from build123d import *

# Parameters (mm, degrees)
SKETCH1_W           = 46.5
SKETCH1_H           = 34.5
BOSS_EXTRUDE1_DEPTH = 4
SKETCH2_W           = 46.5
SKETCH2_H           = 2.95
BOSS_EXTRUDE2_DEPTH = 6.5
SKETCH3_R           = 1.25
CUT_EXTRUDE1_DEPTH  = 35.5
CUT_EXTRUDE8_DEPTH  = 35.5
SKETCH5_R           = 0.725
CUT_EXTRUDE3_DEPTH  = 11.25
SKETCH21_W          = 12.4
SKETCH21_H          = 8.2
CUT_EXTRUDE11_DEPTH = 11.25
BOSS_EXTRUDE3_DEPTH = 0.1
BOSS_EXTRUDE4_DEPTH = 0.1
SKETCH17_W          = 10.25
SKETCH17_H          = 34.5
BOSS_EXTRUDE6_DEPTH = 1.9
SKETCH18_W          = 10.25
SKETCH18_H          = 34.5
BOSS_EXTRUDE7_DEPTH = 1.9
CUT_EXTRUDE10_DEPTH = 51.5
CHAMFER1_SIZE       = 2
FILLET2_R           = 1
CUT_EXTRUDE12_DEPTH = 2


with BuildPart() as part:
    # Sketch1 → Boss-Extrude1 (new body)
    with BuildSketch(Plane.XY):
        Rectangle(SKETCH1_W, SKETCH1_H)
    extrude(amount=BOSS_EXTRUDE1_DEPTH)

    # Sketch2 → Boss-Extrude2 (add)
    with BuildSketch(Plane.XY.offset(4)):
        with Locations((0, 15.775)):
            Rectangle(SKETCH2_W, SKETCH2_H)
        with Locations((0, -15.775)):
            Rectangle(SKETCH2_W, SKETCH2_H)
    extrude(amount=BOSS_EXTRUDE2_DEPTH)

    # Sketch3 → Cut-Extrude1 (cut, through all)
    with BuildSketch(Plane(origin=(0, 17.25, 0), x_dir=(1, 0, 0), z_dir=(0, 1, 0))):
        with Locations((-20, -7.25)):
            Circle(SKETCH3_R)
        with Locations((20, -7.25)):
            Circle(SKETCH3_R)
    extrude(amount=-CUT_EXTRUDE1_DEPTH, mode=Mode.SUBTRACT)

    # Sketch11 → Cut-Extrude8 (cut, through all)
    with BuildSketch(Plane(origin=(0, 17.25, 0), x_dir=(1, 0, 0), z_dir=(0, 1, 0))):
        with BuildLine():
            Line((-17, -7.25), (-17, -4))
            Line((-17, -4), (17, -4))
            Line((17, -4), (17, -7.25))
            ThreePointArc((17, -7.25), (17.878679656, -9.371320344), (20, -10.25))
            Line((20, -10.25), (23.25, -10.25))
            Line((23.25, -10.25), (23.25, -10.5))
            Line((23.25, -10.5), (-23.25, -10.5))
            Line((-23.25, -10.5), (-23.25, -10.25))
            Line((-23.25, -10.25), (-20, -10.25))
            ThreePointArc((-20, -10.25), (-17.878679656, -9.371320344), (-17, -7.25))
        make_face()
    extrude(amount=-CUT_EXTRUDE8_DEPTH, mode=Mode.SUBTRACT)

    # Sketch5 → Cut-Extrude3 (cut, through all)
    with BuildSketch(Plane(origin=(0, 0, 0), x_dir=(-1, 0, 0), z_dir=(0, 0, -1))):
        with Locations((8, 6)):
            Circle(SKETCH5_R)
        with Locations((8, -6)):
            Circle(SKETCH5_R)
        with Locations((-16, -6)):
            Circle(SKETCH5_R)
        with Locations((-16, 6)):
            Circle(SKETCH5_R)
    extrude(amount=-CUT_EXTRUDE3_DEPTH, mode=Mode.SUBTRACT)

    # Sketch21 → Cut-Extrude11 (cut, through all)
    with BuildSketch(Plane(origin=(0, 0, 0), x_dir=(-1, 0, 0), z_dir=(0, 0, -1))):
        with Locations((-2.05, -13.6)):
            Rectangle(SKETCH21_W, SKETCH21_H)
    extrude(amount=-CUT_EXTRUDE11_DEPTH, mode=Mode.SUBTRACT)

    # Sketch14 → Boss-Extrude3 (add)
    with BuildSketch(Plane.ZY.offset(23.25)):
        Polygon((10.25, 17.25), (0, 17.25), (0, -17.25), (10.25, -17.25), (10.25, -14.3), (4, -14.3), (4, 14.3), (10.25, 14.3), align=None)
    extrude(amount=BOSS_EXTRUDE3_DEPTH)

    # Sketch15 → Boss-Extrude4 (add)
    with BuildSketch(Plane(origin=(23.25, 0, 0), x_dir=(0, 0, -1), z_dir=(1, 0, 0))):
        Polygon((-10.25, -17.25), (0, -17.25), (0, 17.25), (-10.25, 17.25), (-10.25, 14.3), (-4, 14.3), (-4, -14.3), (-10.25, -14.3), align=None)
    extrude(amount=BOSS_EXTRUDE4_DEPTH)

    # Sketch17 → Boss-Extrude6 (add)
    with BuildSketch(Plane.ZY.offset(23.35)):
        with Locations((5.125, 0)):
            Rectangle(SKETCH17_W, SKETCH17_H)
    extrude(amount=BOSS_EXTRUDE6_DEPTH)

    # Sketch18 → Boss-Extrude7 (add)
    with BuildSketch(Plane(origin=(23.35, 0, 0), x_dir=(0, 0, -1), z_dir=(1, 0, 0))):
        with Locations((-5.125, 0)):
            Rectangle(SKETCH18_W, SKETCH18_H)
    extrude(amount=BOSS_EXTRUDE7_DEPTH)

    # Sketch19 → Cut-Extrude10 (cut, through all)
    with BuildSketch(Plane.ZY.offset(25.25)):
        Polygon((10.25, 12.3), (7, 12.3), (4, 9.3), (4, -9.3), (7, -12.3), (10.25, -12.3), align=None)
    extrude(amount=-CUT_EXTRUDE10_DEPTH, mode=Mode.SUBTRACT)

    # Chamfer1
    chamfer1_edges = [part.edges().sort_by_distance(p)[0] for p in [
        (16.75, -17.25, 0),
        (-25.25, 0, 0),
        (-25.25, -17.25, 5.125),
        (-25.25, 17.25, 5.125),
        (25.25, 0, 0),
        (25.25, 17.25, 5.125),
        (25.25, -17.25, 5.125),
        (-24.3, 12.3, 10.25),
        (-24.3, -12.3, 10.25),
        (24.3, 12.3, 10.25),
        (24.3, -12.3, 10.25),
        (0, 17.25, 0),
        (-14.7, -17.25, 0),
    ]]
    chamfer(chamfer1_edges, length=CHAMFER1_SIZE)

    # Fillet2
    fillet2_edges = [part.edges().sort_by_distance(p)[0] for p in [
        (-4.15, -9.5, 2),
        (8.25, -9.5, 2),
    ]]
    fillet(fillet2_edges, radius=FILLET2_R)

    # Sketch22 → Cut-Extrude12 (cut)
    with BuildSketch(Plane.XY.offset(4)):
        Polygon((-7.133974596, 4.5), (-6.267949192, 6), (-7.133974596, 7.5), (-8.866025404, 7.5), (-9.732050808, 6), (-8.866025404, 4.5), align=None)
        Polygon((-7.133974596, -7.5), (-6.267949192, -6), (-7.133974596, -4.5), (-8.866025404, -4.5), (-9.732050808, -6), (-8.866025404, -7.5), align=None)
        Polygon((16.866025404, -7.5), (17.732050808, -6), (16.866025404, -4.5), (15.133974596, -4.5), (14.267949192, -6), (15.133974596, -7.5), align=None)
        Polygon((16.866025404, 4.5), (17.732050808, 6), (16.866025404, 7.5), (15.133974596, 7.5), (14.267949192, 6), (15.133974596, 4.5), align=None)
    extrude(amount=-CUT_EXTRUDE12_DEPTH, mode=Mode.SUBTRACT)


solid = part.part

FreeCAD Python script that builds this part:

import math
import FreeCAD as App
import Part
import Sketcher
Q = App.Units.Quantity


def edges_at(feature, points):
    """Names of the edges that pass closest to the given points."""
    edges = feature.Shape.Edges
    near = lambda p: min(range(len(edges)), key=lambda i: edges[i].distToShape(Part.Vertex(*p))[0])
    return sorted({f"Edge{near(p) + 1}" for p in points})


def add_polygon(sketch, points):
    """Adds a closed chain of lines whose ends are joined by coincident constraints."""
    first, n = sketch.GeometryCount, len(points)
    for a, b in zip(points, points[1:] + points[:1]):
        sketch.addGeometry(Part.LineSegment(App.Vector(*a, 0), App.Vector(*b, 0)), False)
    for i in range(n):
        sketch.addConstraint(Sketcher.Constraint("Coincident", first + i, 2, first + (i + 1) % n, 1))

doc = App.newDocument("Part")
body = doc.addObject("PartDesign::Body", "Body")

sketch1 = body.newObject("Sketcher::SketchObject", "Sketch")
sketch1.AttachmentSupport = (doc.getObject("XY_Plane"), [""])
sketch1.MapMode = "FlatFace"
add_polygon(sketch1, [(-23.25, 17.25), (-23.25, -17.25), (23.25, -17.25), (23.25, 17.25)])
sketch1.addConstraint([
    Sketcher.Constraint("Vertical", 0),
    Sketcher.Constraint("Horizontal", 1),
    Sketcher.Constraint("Vertical", 2),
    Sketcher.Constraint("Horizontal", 3),
    Sketcher.Constraint("Symmetric", 0, 2, 2, 2, -1, 1),
    Sketcher.Constraint("DistanceX", 1, 1, 1, 2, 46.5),
    Sketcher.Constraint("DistanceY", 0, 2, 0, 1, 34.5),
])
pad1 = body.newObject("PartDesign::Pad", "Pad")
pad1.Profile = sketch1
pad1.Length = 4

sketch2 = body.newObject("Sketcher::SketchObject", "Sketch001")
sketch2.AttachmentSupport = (doc.getObject("XY_Plane"), [""])
sketch2.MapMode = "FlatFace"
sketch2.AttachmentOffset = App.Placement(App.Vector(0, 0, 4), App.Rotation())
add_polygon(sketch2, [(-23.25, 17.25), (-23.25, 14.3), (23.25, 14.3), (23.25, 17.25)])
add_polygon(sketch2, [(-23.25, -14.3), (-23.25, -17.25), (23.25, -17.25), (23.25, -14.3)])
sketch2.addConstraint([
    Sketcher.Constraint("Vertical", 0),
    Sketcher.Constraint("Horizontal", 1),
    Sketcher.Constraint("Vertical", 2),
    Sketcher.Constraint("Horizontal", 3),
    Sketcher.Constraint("Vertical", 4),
    Sketcher.Constraint("Horizontal", 5),
    Sketcher.Constraint("Vertical", 6),
    Sketcher.Constraint("Horizontal", 7),
    Sketcher.Constraint("Symmetric", 2, 2, 4, 2, -1, 1),
    Sketcher.Constraint("Symmetric", 0, 2, 6, 2, -1, 1),
    Sketcher.Constraint("Vertical", 3, 2, 4, 2),
    Sketcher.Constraint("DistanceX", 1, 1, 1, 2, 46.5),
    Sketcher.Constraint("DistanceY", 0, 2, 0, 1, 2.95),
    Sketcher.Constraint("DistanceY", -1, 1, 0, 2, 14.3),
])
pad2 = body.newObject("PartDesign::Pad", "Pad001")
pad2.Profile = sketch2
pad2.Length = 6.5

sketch3 = body.newObject("Sketcher::SketchObject", "Sketch002")
sketch3.AttachmentSupport = (doc.getObject("XZ_Plane"), [""])
sketch3.MapMode = "FlatFace"
sketch3.AttachmentOffset = App.Placement(App.Vector(0, 0, -17.25), App.Rotation())
sketch3.addGeometry([
    Part.Circle(App.Vector(-20, 7.25, 0), App.Vector(0, 0, 1), 1.25),
    Part.Circle(App.Vector(20, 7.25, 0), App.Vector(0, 0, 1), 1.25),
], False)
sketch3.addConstraint([
    Sketcher.Constraint("Equal", 0, 1),
    Sketcher.Constraint("Symmetric", 0, 3, 1, 3, -2),
    Sketcher.Constraint("Diameter", 0, 2.5),
    Sketcher.Constraint("DistanceX", 0, 3, -1, 1, 20.0),
    Sketcher.Constraint("DistanceY", -1, 1, 0, 3, 7.25),
])
pocket1 = body.newObject("PartDesign::Pocket", "Pocket")
pocket1.Profile = sketch3
pocket1.Type = "ThroughAll"
pocket1.Reversed = True

sketch4 = body.newObject("Sketcher::SketchObject", "Sketch003")
sketch4.AttachmentSupport = (doc.getObject("XZ_Plane"), [""])
sketch4.MapMode = "FlatFace"
sketch4.AttachmentOffset = App.Placement(App.Vector(0, 0, -17.25), App.Rotation())
sketch4.addGeometry([
    Part.LineSegment(App.Vector(-17, 4, 0), App.Vector(-17, 7.25, 0)),
    Part.ArcOfCircle(Part.Circle(App.Vector(-20, 7.25, 0), App.Vector(0, 0, 1), 3), math.radians(0), math.radians(90)),
    Part.LineSegment(App.Vector(-20, 10.25, 0), App.Vector(-23.25, 10.25, 0)),
    Part.LineSegment(App.Vector(-23.25, 10.25, 0), App.Vector(-23.25, 10.5, 0)),
    Part.LineSegment(App.Vector(-23.25, 10.5, 0), App.Vector(23.25, 10.5, 0)),
    Part.LineSegment(App.Vector(23.25, 10.5, 0), App.Vector(23.25, 10.25, 0)),
    Part.LineSegment(App.Vector(23.25, 10.25, 0), App.Vector(20, 10.25, 0)),
    Part.ArcOfCircle(Part.Circle(App.Vector(20, 7.25, 0), App.Vector(0, 0, 1), 3), math.radians(90), math.radians(180)),
    Part.LineSegment(App.Vector(17, 7.25, 0), App.Vector(17, 4, 0)),
    Part.LineSegment(App.Vector(17, 4, 0), App.Vector(-17, 4, 0)),
], False)
sketch4.addConstraint([
    Sketcher.Constraint("Tangent", 0, 2, 1, 1),
    Sketcher.Constraint("Tangent", 1, 2, 2, 1),
    Sketcher.Constraint("Coincident", 2, 2, 3, 1),
    Sketcher.Constraint("Coincident", 3, 2, 4, 1),
    Sketcher.Constraint("Coincident", 4, 2, 5, 1),
    Sketcher.Constraint("Coincident", 5, 2, 6, 1),
    Sketcher.Constraint("Tangent", 6, 2, 7, 1),
    Sketcher.Constraint("Tangent", 7, 2, 8, 1),
    Sketcher.Constraint("Coincident", 8, 2, 9, 1),
    Sketcher.Constraint("Coincident", 9, 2, 0, 1),
    Sketcher.Constraint("Vertical", 0),
    Sketcher.Constraint("Horizontal", 2),
    Sketcher.Constraint("Vertical", 3),
    Sketcher.Constraint("Horizontal", 4),
    Sketcher.Constraint("Vertical", 5),
    Sketcher.Constraint("Horizontal", 6),
    Sketcher.Constraint("Vertical", 8),
    Sketcher.Constraint("Horizontal", 9),
    Sketcher.Constraint("Equal", 1, 7),
    Sketcher.Constraint("Symmetric", 1, 3, 7, 3, -2),
    Sketcher.Constraint("Equal", 2, 6),
    Sketcher.Constraint("Equal", 6, 0),
    Sketcher.Constraint("Radius", 1, 3.0),
    Sketcher.Constraint("DistanceX", 9, 2, 9, 1, 34.0),
    Sketcher.Constraint("DistanceX", 4, 1, 4, 2, 46.5),
    Sketcher.Constraint("DistanceY", -1, 1, 8, 2, 4.0),
    Sketcher.Constraint("DistanceY", 3, 1, 3, 2, 0.25),
])
pocket2 = body.newObject("PartDesign::Pocket", "Pocket001")
pocket2.Profile = sketch4
pocket2.Type = "ThroughAll"
pocket2.Reversed = True

sketch5 = body.newObject("Sketcher::SketchObject", "Sketch004")
sketch5.AttachmentSupport = (doc.getObject("XY_Plane"), [""])
sketch5.MapMode = "FlatFace"
sketch5.addGeometry([
    Part.Circle(App.Vector(-8, 6, 0), App.Vector(0, 0, 1), 0.725),
    Part.Circle(App.Vector(-8, -6, 0), App.Vector(0, 0, 1), 0.725),
    Part.Circle(App.Vector(16, -6, 0), App.Vector(0, 0, 1), 0.725),
    Part.Circle(App.Vector(16, 6, 0), App.Vector(0, 0, 1), 0.725),
], False)
sketch5.addConstraint([
    Sketcher.Constraint("Equal", 0, 1),
    Sketcher.Constraint("Equal", 1, 2),
    Sketcher.Constraint("Equal", 2, 3),
    Sketcher.Constraint("Symmetric", 0, 3, 1, 3, -1),
    Sketcher.Constraint("Symmetric", 2, 3, 3, 3, -1),
    Sketcher.Constraint("Horizontal", 1, 3, 2, 3),
    Sketcher.Constraint("Diameter", 0, 1.45),
    Sketcher.Constraint("DistanceX", 0, 3, -1, 1, 8.0),
    Sketcher.Constraint("DistanceY", -1, 1, 0, 3, 6.0),
    Sketcher.Constraint("DistanceX", -1, 1, 2, 3, 16.0),
])
pocket3 = body.newObject("PartDesign::Pocket", "Pocket002")
pocket3.Profile = sketch5
pocket3.Type = "ThroughAll"
pocket3.Reversed = True

sketch6 = body.newObject("Sketcher::SketchObject", "Sketch005")
sketch6.AttachmentSupport = (doc.getObject("XY_Plane"), [""])
sketch6.MapMode = "FlatFace"
add_polygon(sketch6, [(8.25, -9.5), (8.25, -17.7), (-4.15, -17.7), (-4.15, -9.5)])
sketch6.addConstraint([
    Sketcher.Constraint("Vertical", 0),
    Sketcher.Constraint("Horizontal", 1),
    Sketcher.Constraint("Vertical", 2),
    Sketcher.Constraint("Horizontal", 3),
    Sketcher.Constraint("DistanceX", 1, 2, 1, 1, 12.4),
    Sketcher.Constraint("DistanceY", 0, 2, 0, 1, 8.2),
    Sketcher.Constraint("DistanceY", 0, 2, -1, 1, 17.7),
    Sketcher.Constraint("DistanceX", -1, 1, 0, 2, 8.25),
])
pocket4 = body.newObject("PartDesign::Pocket", "Pocket003")
pocket4.Profile = sketch6
pocket4.Type = "ThroughAll"
pocket4.Reversed = True

sketch7 = body.newObject("Sketcher::SketchObject", "Sketch006")
sketch7.AttachmentSupport = (doc.getObject("YZ_Plane"), [""])
sketch7.MapMode = "FlatFace"
sketch7.AttachmentOffset = App.Placement(App.Vector(0, 0, -23.25), App.Rotation())
add_polygon(sketch7, [(17.25, 10.25), (17.25, 0), (-17.25, 0), (-17.25, 10.25), (-14.3, 10.25), (-14.3, 4), (14.3, 4), (14.3, 10.25)])
sketch7.addConstraint([
    Sketcher.Constraint("Vertical", 0),
    Sketcher.Constraint("Horizontal", 1),
    Sketcher.Constraint("Vertical", 2),
    Sketcher.Constraint("Horizontal", 3),
    Sketcher.Constraint("Vertical", 4),
    Sketcher.Constraint("Horizontal", 5),
    Sketcher.Constraint("Vertical", 6),
    Sketcher.Constraint("Horizontal", 7),
    Sketcher.Constraint("Symmetric", 0, 2, 1, 2, -1, 1),
    Sketcher.Constraint("Symmetric", 3, 2, 6, 2, -2),
    Sketcher.Constraint("DistanceX", 1, 2, 1, 1, 34.5),
    Sketcher.Constraint("DistanceX", 5, 1, 5, 2, 28.6),
    Sketcher.Constraint("DistanceY", -1, 1, 4, 2, 4.0),
    Sketcher.Constraint("DistanceY", 0, 2, 0, 1, 10.25),
])
pad3 = body.newObject("PartDesign::Pad", "Pad002")
pad3.Profile = sketch7
pad3.Length = 0.1
pad3.Reversed = True

sketch8 = body.newObject("Sketcher::SketchObject", "Sketch007")
sketch8.AttachmentSupport = (doc.getObject("YZ_Plane"), [""])
sketch8.MapMode = "FlatFace"
sketch8.AttachmentOffset = App.Placement(App.Vector(0, 0, 23.25), App.Rotation())
add_polygon(sketch8, [(-17.25, 10.25), (-17.25, 0), (17.25, 0), (17.25, 10.25), (14.3, 10.25), (14.3, 4), (-14.3, 4), (-14.3, 10.25)])
sketch8.addConstraint([
    Sketcher.Constraint("Vertical", 0),
    Sketcher.Constraint("Horizontal", 1),
    Sketcher.Constraint("Vertical", 2),
    Sketcher.Constraint("Horizontal", 3),
    Sketcher.Constraint("Vertical", 4),
    Sketcher.Constraint("Horizontal", 5),
    Sketcher.Constraint("Vertical", 6),
    Sketcher.Constraint("Horizontal", 7),
    Sketcher.Constraint("Symmetric", 0, 2, 1, 2, -1, 1),
    Sketcher.Constraint("Symmetric", 3, 2, 6, 2, -2),
    Sketcher.Constraint("DistanceX", 1, 1, 1, 2, 34.5),
    Sketcher.Constraint("DistanceX", 5, 2, 5, 1, 28.6),
    Sketcher.Constraint("DistanceY", -1, 1, 4, 2, 4.0),
    Sketcher.Constraint("DistanceY", 0, 2, 0, 1, 10.25),
])
pad4 = body.newObject("PartDesign::Pad", "Pad003")
pad4.Profile = sketch8
pad4.Length = 0.1

sketch9 = body.newObject("Sketcher::SketchObject", "Sketch008")
sketch9.AttachmentSupport = (doc.getObject("YZ_Plane"), [""])
sketch9.MapMode = "FlatFace"
sketch9.AttachmentOffset = App.Placement(App.Vector(0, 0, -23.35), App.Rotation())
add_polygon(sketch9, [(17.25, 0), (-17.25, 0), (-17.25, 10.25), (17.25, 10.25)])
sketch9.addConstraint([
    Sketcher.Constraint("Horizontal", 0),
    Sketcher.Constraint("Vertical", 1),
    Sketcher.Constraint("Horizontal", 2),
    Sketcher.Constraint("Vertical", 3),
    Sketcher.Constraint("Symmetric", 0, 2, 3, 2, -1, 1),
    Sketcher.Constraint("DistanceX", 0, 2, 0, 1, 34.5),
    Sketcher.Constraint("DistanceY", 1, 1, 1, 2, 10.25),
])
pad5 = body.newObject("PartDesign::Pad", "Pad004")
pad5.Profile = sketch9
pad5.Length = 1.9
pad5.Reversed = True

sketch10 = body.newObject("Sketcher::SketchObject", "Sketch009")
sketch10.AttachmentSupport = (doc.getObject("YZ_Plane"), [""])
sketch10.MapMode = "FlatFace"
sketch10.AttachmentOffset = App.Placement(App.Vector(0, 0, 23.35), App.Rotation())
add_polygon(sketch10, [(17.25, 10.25), (-17.25, 10.25), (-17.25, 0), (17.25, 0)])
sketch10.addConstraint([
    Sketcher.Constraint("Horizontal", 0),
    Sketcher.Constraint("Vertical", 1),
    Sketcher.Constraint("Horizontal", 2),
    Sketcher.Constraint("Vertical", 3),
    Sketcher.Constraint("Symmetric", 1, 2, 2, 2, -1, 1),
    Sketcher.Constraint("DistanceX", 0, 2, 0, 1, 34.5),
    Sketcher.Constraint("DistanceY", 1, 2, 1, 1, 10.25),
])
pad6 = body.newObject("PartDesign::Pad", "Pad005")
pad6.Profile = sketch10
pad6.Length = 1.9

sketch11 = body.newObject("Sketcher::SketchObject", "Sketch010")
sketch11.AttachmentSupport = (doc.getObject("YZ_Plane"), [""])
sketch11.MapMode = "FlatFace"
sketch11.AttachmentOffset = App.Placement(App.Vector(0, 0, -25.25), App.Rotation())
add_polygon(sketch11, [(12.3, 10.25), (12.3, 7), (9.3, 4), (-9.3, 4), (-12.3, 7), (-12.3, 10.25)])
sketch11.addConstraint([
    Sketcher.Constraint("Vertical", 0),
    Sketcher.Constraint("Horizontal", 2),
    Sketcher.Constraint("Vertical", 4),
    Sketcher.Constraint("Horizontal", 5),
    Sketcher.Constraint("Symmetric", 0, 2, 3, 2, -2),
    Sketcher.Constraint("Perpendicular", 1, 3),
    Sketcher.Constraint("Equal", 1, 3),
    Sketcher.Constraint("DistanceX", 2, 2, 2, 1, 18.6),
    Sketcher.Constraint("DistanceX", 5, 1, 5, 2, 24.6),
    Sketcher.Constraint("DistanceY", -1, 1, 0, 2, 7.0),
    Sketcher.Constraint("DistanceY", 0, 2, 0, 1, 3.25),
])
pocket5 = body.newObject("PartDesign::Pocket", "Pocket004")
pocket5.Profile = sketch11
pocket5.Type = "ThroughAll"
pocket5.Reversed = True
doc.recompute()

chamfer = body.newObject("PartDesign::Chamfer", "Chamfer")
chamfer.Base = (pocket5, edges_at(pocket5, [
    (16.75, -17.25, 0),
    (-25.25, 0, 0),
    (-25.25, -17.25, 5.125),
    (-25.25, 17.25, 5.125),
    (25.25, 0, 0),
    (25.25, 17.25, 5.125),
    (25.25, -17.25, 5.125),
    (-24.3, 12.3, 10.25),
    (-24.3, -12.3, 10.25),
    (24.3, 12.3, 10.25),
    (24.3, -12.3, 10.25),
    (0, 17.25, 0),
    (-14.7, -17.25, 0),
]))
chamfer.Size = 2
doc.recompute()

fillet = body.newObject("PartDesign::Fillet", "Fillet")
fillet.Base = (chamfer, edges_at(chamfer, [(-4.15, -9.5, 2), (8.25, -9.5, 2)]))
fillet.Radius = 1

sketch12 = body.newObject("Sketcher::SketchObject", "Sketch011")
sketch12.AttachmentSupport = (doc.getObject("XY_Plane"), [""])
sketch12.MapMode = "FlatFace"
sketch12.AttachmentOffset = App.Placement(App.Vector(0, 0, 4), App.Rotation())
add_polygon(sketch12, [(-7.133975, 4.5), (-6.267949, 6), (-7.133975, 7.5), (-8.866025, 7.5), (-9.732051, 6), (-8.866025, 4.5)])
add_polygon(sketch12, [(-7.133975, -7.5), (-6.267949, -6), (-7.133975, -4.5), (-8.866025, -4.5), (-9.732051, -6), (-8.866025, -7.5)])
add_polygon(sketch12, [(16.866025, -7.5), (17.732051, -6), (16.866025, -4.5), (15.133975, -4.5), (14.267949, -6), (15.133975, -7.5)])
add_polygon(sketch12, [(16.866025, 4.5), (17.732051, 6), (16.866025, 7.5), (15.133975, 7.5), (14.267949, 6), (15.133975, 4.5)])
sketch12.addConstraint([
    Sketcher.Constraint("Horizontal", 2),
    Sketcher.Constraint("Horizontal", 5),
    Sketcher.Constraint("Horizontal", 8),
    Sketcher.Constraint("Horizontal", 11),
    Sketcher.Constraint("Horizontal", 14),
    Sketcher.Constraint("Horizontal", 17),
    Sketcher.Constraint("Horizontal", 20),
    Sketcher.Constraint("Horizontal", 23),
    Sketcher.Constraint("Symmetric", 0, 2, 6, 2, -1),
    Sketcher.Constraint("Symmetric", 5, 2, 7, 2, -1),
    Sketcher.Constraint("Symmetric", 3, 2, 9, 2, -1),
    Sketcher.Constraint("Symmetric", 2, 2, 10, 2, -1),
    Sketcher.Constraint("Symmetric", 12, 2, 18, 2, -1),
    Sketcher.Constraint("Symmetric", 17, 2, 19, 2, -1),
    Sketcher.Constraint("Symmetric", 15, 2, 21, 2, -1),
    Sketcher.Constraint("Symmetric", 14, 2, 22, 2, -1),
    Sketcher.Constraint("Parallel", 0, 3),
    Sketcher.Constraint("Parallel", 1, 4),
    Sketcher.Constraint("Parallel", 3, 6),
    Sketcher.Constraint("Parallel", 4, 7),
    Sketcher.Constraint("Parallel", 6, 9),
    Sketcher.Constraint("Parallel", 9, 12),
    Sketcher.Constraint("Parallel", 10, 13),
    Sketcher.Constraint("Parallel", 12, 15),
    Sketcher.Constraint("Parallel", 13, 16),
    Sketcher.Constraint("Parallel", 15, 18),
    Sketcher.Constraint("Parallel", 18, 21),
    Sketcher.Constraint("Horizontal", 0, 2, 3, 2),
    Sketcher.Constraint("Horizontal", 9, 2, 12, 2),
    Sketcher.Constraint("Horizontal", 8, 2, 13, 2),
    Sketcher.Constraint("Horizontal", 12, 2, 15, 2),
    Sketcher.Constraint("Horizontal", 11, 2, 16, 2),
    Sketcher.Constraint("Vertical", 2, 2, 4, 2),
    Sketcher.Constraint("Equal", 11, 14),
    Sketcher.Constraint("Angle", 0, Q("60 deg")),
    Sketcher.Constraint("DistanceY", -1, 1, 0, 2, 6.0),
    Sketcher.Constraint("DistanceY", 4, 2, 2, 2, 3.0),
    Sketcher.Constraint("DistanceX", 6, 2, 12, 2, 24.0),
    Sketcher.Constraint("DistanceX", 2, 2, 2, 1, 1.732051),
    Sketcher.Constraint("DistanceX", 0, 2, -1, 1, 6.267949),
])
pocket6 = body.newObject("PartDesign::Pocket", "Pocket005")
pocket6.Profile = sketch12
pocket6.Length = 2

doc.recompute()
